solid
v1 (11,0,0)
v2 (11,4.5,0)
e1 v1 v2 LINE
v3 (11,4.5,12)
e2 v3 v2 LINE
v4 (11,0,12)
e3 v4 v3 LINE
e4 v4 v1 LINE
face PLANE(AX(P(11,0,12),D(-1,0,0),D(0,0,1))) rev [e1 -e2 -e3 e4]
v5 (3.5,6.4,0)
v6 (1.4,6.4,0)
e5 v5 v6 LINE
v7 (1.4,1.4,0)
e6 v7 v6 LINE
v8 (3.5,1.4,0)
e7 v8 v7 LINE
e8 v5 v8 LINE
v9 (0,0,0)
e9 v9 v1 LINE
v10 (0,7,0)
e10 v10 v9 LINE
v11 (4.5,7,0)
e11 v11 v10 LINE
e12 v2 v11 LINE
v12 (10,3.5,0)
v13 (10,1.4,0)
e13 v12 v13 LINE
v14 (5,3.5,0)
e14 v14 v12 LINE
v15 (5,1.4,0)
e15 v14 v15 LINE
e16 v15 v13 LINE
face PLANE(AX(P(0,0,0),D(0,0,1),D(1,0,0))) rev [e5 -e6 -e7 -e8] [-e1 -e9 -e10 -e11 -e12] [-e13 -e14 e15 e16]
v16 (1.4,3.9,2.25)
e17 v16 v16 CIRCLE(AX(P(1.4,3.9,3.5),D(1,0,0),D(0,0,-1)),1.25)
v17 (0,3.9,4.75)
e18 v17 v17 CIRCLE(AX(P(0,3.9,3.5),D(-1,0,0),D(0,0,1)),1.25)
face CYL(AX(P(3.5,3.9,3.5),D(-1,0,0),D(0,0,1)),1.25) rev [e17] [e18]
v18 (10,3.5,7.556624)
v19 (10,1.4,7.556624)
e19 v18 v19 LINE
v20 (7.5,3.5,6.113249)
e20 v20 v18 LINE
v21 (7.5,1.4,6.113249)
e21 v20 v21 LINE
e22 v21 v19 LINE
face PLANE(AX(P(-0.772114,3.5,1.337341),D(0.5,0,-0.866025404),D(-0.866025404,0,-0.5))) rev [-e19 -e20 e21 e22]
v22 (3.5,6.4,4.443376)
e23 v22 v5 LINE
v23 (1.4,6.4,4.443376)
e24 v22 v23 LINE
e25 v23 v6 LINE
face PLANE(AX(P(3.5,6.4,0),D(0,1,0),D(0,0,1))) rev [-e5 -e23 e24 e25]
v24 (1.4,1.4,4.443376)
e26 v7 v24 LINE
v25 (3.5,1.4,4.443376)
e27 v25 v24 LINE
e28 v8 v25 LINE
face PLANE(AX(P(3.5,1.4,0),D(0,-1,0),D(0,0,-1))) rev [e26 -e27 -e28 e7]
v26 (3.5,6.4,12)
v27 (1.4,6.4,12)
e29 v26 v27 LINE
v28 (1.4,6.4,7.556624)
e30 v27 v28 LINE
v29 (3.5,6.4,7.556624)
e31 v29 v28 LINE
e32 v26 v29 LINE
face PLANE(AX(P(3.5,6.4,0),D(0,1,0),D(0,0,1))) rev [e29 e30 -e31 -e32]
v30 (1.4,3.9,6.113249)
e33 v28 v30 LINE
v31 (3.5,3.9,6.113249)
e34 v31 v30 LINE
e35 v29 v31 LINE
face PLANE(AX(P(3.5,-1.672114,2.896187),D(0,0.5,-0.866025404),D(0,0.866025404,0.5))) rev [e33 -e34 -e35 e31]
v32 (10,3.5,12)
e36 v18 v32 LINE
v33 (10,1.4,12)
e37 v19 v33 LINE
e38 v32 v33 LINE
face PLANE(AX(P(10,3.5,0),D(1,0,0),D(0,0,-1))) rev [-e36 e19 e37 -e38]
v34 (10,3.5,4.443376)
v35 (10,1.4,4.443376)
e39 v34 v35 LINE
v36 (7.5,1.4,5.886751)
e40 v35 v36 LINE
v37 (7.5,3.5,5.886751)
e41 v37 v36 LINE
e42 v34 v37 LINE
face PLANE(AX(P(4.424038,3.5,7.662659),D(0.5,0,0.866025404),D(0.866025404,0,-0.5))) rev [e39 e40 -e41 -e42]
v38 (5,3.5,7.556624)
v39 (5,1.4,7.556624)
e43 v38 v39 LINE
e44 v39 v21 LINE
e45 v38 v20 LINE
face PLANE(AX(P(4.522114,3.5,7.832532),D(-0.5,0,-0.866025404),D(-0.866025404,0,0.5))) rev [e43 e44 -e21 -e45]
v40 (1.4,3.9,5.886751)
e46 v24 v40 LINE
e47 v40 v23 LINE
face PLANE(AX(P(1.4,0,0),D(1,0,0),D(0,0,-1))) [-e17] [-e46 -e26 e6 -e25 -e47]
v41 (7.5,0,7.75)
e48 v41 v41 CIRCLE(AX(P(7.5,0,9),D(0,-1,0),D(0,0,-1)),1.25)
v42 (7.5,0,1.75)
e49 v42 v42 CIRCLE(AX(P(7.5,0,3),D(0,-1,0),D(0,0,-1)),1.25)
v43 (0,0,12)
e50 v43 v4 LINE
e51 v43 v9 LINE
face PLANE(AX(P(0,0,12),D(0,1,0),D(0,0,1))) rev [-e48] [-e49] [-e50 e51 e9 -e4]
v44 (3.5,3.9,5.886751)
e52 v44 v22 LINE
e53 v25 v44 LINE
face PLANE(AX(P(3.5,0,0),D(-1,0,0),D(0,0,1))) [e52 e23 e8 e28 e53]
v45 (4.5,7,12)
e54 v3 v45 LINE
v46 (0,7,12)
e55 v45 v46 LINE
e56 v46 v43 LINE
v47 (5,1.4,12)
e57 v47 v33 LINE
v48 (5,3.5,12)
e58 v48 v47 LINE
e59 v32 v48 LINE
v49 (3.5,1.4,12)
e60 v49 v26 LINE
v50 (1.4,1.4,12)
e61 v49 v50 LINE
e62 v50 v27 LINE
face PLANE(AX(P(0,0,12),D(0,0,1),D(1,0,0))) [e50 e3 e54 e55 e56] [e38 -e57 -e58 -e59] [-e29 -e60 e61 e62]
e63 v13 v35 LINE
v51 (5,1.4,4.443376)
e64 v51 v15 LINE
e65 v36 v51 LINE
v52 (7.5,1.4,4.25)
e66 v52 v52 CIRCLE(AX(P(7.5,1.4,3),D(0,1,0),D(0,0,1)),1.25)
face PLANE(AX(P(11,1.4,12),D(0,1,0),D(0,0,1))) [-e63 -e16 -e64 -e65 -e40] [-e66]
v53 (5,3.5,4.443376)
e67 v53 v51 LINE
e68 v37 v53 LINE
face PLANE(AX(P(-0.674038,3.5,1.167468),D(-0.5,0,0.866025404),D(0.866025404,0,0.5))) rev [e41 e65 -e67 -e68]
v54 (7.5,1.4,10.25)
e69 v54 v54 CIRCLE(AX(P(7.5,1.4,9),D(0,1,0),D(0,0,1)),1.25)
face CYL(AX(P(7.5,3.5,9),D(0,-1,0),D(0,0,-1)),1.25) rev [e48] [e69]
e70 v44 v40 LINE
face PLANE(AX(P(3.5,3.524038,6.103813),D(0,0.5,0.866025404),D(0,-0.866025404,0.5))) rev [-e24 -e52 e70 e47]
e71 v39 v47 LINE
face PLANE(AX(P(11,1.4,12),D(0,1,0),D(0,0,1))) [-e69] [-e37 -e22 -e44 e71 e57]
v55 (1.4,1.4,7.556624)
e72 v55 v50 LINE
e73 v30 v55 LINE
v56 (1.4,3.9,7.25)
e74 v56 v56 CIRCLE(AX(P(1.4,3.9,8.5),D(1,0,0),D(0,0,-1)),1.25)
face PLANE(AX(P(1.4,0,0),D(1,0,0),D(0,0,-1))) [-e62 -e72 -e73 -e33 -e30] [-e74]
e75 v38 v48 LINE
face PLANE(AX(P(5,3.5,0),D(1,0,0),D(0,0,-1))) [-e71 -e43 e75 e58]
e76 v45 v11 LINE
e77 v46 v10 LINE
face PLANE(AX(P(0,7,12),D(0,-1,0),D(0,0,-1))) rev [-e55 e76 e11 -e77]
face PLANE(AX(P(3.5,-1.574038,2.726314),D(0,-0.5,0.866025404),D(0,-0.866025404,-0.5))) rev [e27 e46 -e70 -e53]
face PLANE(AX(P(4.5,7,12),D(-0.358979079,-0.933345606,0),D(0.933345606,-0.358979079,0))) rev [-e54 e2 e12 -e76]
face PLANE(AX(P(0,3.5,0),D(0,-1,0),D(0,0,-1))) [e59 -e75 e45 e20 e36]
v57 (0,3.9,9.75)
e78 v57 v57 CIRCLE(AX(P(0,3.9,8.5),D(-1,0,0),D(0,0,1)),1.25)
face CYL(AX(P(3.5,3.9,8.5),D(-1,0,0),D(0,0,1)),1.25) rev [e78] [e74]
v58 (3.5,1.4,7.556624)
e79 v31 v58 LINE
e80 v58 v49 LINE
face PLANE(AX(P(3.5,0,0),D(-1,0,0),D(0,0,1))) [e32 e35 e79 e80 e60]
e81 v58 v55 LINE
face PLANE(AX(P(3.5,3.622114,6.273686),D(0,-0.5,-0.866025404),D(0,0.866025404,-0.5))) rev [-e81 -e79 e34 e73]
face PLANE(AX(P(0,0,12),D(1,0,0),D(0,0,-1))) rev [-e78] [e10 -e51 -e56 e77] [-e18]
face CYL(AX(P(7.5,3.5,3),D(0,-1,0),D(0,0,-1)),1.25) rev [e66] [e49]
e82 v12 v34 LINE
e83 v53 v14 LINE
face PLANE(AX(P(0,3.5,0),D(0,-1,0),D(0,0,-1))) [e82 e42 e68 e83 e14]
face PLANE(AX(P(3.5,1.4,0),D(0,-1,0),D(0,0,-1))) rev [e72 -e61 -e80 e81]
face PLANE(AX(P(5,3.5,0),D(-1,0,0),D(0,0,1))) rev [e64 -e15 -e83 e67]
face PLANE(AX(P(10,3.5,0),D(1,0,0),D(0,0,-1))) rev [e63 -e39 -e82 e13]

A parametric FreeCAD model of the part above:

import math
import FreeCAD as App
import Part
import Sketcher
Q = App.Units.Quantity

doc = App.newDocument("Part")
params = doc.addObject("Spreadsheet::Sheet", "Params")
for row, (alias, value) in enumerate([
    ("sketch1_width", "11 mm"),
    ("sketch1_height", "7 mm"),
    ("sketch1_width2", "4.5 mm"),
    ("pad1_length", "12 mm"),
    ("sketch2_width", "5 mm"),
    ("pocket1_length", "3.5 mm"),
    ("sketch3_height", "12 mm"),
    ("sketch3_width", "1.4 mm"),
    ("pad2_length", "7 mm"),
    ("sketch4_diameter", "2.5 mm"),
    ("sketch4_width", "5 mm"),
    ("pocket2_length", "3.5 mm"),
    ("sketch5_width", "7 mm"),
    ("sketch5_height", "1.4 mm"),
    ("pad3_length", "12 mm"),
    ("sketch6_radius", "1.25 mm"),
    ("pocket3_length", "3.5 mm"),
    ("sketch7_radius", "1.25 mm"),
    ("pocket4_length", "3.5 mm"),
], start=1):
    params.set(f"A{row}", alias)
    params.set(f"B{row}", "=" + value)
    params.setAlias(f"B{row}", alias)

body = doc.addObject("PartDesign::Body", "Body")

sketch1 = body.newObject("Sketcher::SketchObject", "Sketch")
sketch1.AttachmentSupport = (doc.getObject("XY_Plane"), [""])
sketch1.MapMode = "FlatFace"
sketch1.addGeometry([
    Part.LineSegment(App.Vector(0, 7, 0), App.Vector(0, 0, 0)),
    Part.LineSegment(App.Vector(0, 0, 0), App.Vector(11, 0, 0)),
    Part.LineSegment(App.Vector(11, 0, 0), App.Vector(11, 4.5, 0)),
    Part.LineSegment(App.Vector(11, 4.5, 0), App.Vector(4.5, 7, 0)),
    Part.LineSegment(App.Vector(4.5, 7, 0), App.Vector(0, 7, 0)),
], False)
sketch1.addConstraint([
    Sketcher.Constraint("Coincident", 0, 2, 1, 1),
    Sketcher.Constraint("Coincident", 1, 2, 2, 1),
    Sketcher.Constraint("Coincident", 2, 2, 3, 1),
    Sketcher.Constraint("Coincident", 3, 2, 4, 1),
    Sketcher.Constraint("Coincident", 4, 2, 0, 1),
    Sketcher.Constraint("Vertical", 0),
    Sketcher.Constraint("Horizontal", 1),
    Sketcher.Constraint("Vertical", 2),
    Sketcher.Constraint("Horizontal", 4),
    Sketcher.Constraint("Coincident", 0, 2, -1, 1),
    Sketcher.Constraint("Equal", 4, 2),
    Sketcher.Constraint("DistanceX", 1, 1, 1, 2, Q("11 mm")),
    Sketcher.Constraint("DistanceY", 0, 2, 0, 1, Q("7 mm")),
    Sketcher.Constraint("DistanceX", 4, 2, 4, 1, Q("4.5 mm")),
])
sketch1.setExpression("Constraints[11]", "Params.sketch1_width")
sketch1.setExpression("Constraints[12]", "Params.sketch1_height")
sketch1.setExpression("Constraints[13]", "Params.sketch1_width2")
pad1 = body.newObject("PartDesign::Pad", "Pad")
pad1.Profile = sketch1
pad1.setExpression("Length", "Params.pad1_length")

sketch2 = body.newObject("Sketcher::SketchObject", "Sketch001")
sketch2.AttachmentSupport = (doc.getObject("YZ_Plane"), [""])
sketch2.MapMode = "FlatFace"
sketch2.addGeometry([
    Part.LineSegment(App.Vector(6.4, 4.443376, 0), App.Vector(6.4, 0, 0)),
    Part.LineSegment(App.Vector(6.4, 0, 0), App.Vector(1.4, 0, 0)),
    Part.LineSegment(App.Vector(1.4, 0, 0), App.Vector(1.4, 4.443376, 0)),
    Part.LineSegment(App.Vector(1.4, 4.443376, 0), App.Vector(3.9, 5.886751, 0)),
    Part.LineSegment(App.Vector(3.9, 5.886751, 0), App.Vector(6.4, 4.443376, 0)),
    Part.LineSegment(App.Vector(6.4, 7.556624, 0), App.Vector(3.9, 6.113249, 0)),
    Part.LineSegment(App.Vector(3.9, 6.113249, 0), App.Vector(1.4, 7.556624, 0)),
    Part.LineSegment(App.Vector(1.4, 7.556624, 0), App.Vector(1.4, 12, 0)),
    Part.LineSegment(App.Vector(1.4, 12, 0), App.Vector(6.4, 12, 0)),
    Part.LineSegment(App.Vector(6.4, 12, 0), App.Vector(6.4, 7.556624, 0)),
], False)
sketch2.addConstraint([
    Sketcher.Constraint("Coincident", 0, 2, 1, 1),
    Sketcher.Constraint("Coincident", 1, 2, 2, 1),
    Sketcher.Constraint("Coincident", 2, 2, 3, 1),
    Sketcher.Constraint("Coincident", 3, 2, 4, 1),
    Sketcher.Constraint("Coincident", 4, 2, 0, 1),
    Sketcher.Constraint("Coincident", 5, 2, 6, 1),
    Sketcher.Constraint("Coincident", 6, 2, 7, 1),
    Sketcher.Constraint("Coincident", 7, 2, 8, 1),
    Sketcher.Constraint("Coincident", 8, 2, 9, 1),
    Sketcher.Constraint("Coincident", 9, 2, 5, 1),
    Sketcher.Constraint("Vertical", 0),
    Sketcher.Constraint("Horizontal", 1),
    Sketcher.Constraint("Vertical", 2),
    Sketcher.Constraint("Vertical", 7),
    Sketcher.Constraint("Horizontal", 8),
    Sketcher.Constraint("Vertical", 9),
    Sketcher.Constraint("PointOnObject", 0, 2, -1),
    Sketcher.Constraint("Parallel", 3, 5),
    Sketcher.Constraint("Parallel", 4, 6),
    Sketcher.Constraint("Horizontal", 2, 2, 4, 2),
    Sketcher.Constraint("Horizontal", 6, 2, 9, 2),
    Sketcher.Constraint("Vertical", 3, 2, 5, 2),
    Sketcher.Constraint("Vertical", 2, 2, 6, 2),
    Sketcher.Constraint("Vertical", 4, 2, 8, 2),
    Sketcher.Constraint("Equal", 2, 7),
    Sketcher.Constraint("DistanceX", 1, 2, 1, 1, Q("5 mm")),
    Sketcher.Constraint("Angle", 3, Q("30 deg")),
    Sketcher.Constraint("DistanceY", -1, 1, 7, 2, Q("12 mm")),
    Sketcher.Constraint("DistanceX", -1, 1, 0, 2, Q("6.4 mm")),
    Sketcher.Constraint("DistanceY", 0, 2, 0, 1, Q("4.443376 mm")),
])
sketch2.setExpression("Constraints[25]", "Params.sketch2_width")
pocket1 = body.newObject("PartDesign::Pocket", "Pocket")
pocket1.Profile = sketch2
pocket1.setExpression("Length", "Params.pocket1_length")
pocket1.Reversed = True

sketch3 = body.newObject("Sketcher::SketchObject", "Sketch002")
sketch3.AttachmentSupport = (doc.getObject("XZ_Plane"), [""])
sketch3.MapMode = "FlatFace"
sketch3.AttachmentOffset = App.Placement(App.Vector(0, 0, -7), App.Rotation())
sketch3.addGeometry([
    Part.LineSegment(App.Vector(0, 0, 0), App.Vector(0, 12, 0)),
    Part.LineSegment(App.Vector(0, 12, 0), App.Vector(1.4, 12, 0)),
    Part.LineSegment(App.Vector(1.4, 12, 0), App.Vector(1.4, 0, 0)),
    Part.LineSegment(App.Vector(1.4, 0, 0), App.Vector(0, 0, 0)),
], False)
sketch3.addConstraint([
    Sketcher.Constraint("Coincident", 0, 2, 1, 1),
    Sketcher.Constraint("Coincident", 1, 2, 2, 1),
    Sketcher.Constraint("Coincident", 2, 2, 3, 1),
    Sketcher.Constraint("Coincident", 3, 2, 0, 1),
    Sketcher.Constraint("Vertical", 0),
    Sketcher.Constraint("Horizontal", 1),
    Sketcher.Constraint("Vertical", 2),
    Sketcher.Constraint("Horizontal", 3),
    Sketcher.Constraint("Coincident", 3, 2, -1, 1),
    Sketcher.Constraint("DistanceY", 0, 1, 0, 2, Q("12 mm")),
    Sketcher.Constraint("DistanceX", 1, 1, 1, 2, Q("1.4 mm")),
])
sketch3.setExpression("Constraints[9]", "Params.sketch3_height")
sketch3.setExpression("Constraints[10]", "Params.sketch3_width")
pad2 = body.newObject("PartDesign::Pad", "Pad001")
pad2.Profile = sketch3
pad2.setExpression("Length", "Params.pad2_length")

sketch4 = body.newObject("Sketcher::SketchObject", "Sketch003")
sketch4.AttachmentSupport = (doc.getObject("XZ_Plane"), [""])
sketch4.MapMode = "FlatFace"
sketch4.addGeometry([
    Part.LineSegment(App.Vector(7.5, 6.113249, 0), App.Vector(10, 7.556624, 0)),
    Part.LineSegment(App.Vector(10, 7.556624, 0), App.Vector(10, 12, 0)),
    Part.LineSegment(App.Vector(10, 12, 0), App.Vector(5, 12, 0)),
    Part.LineSegment(App.Vector(5, 12, 0), App.Vector(5, 7.556624, 0)),
    Part.LineSegment(App.Vector(5, 7.556624, 0), App.Vector(7.5, 6.113249, 0)),
    Part.LineSegment(App.Vector(5, 4.443376, 0), App.Vector(5, 0, 0)),
    Part.LineSegment(App.Vector(5, 0, 0), App.Vector(10, 0, 0)),
    Part.LineSegment(App.Vector(10, 0, 0), App.Vector(10, 4.443376, 0)),
    Part.LineSegment(App.Vector(10, 4.443376, 0), App.Vector(7.5, 5.886751, 0)),
    Part.LineSegment(App.Vector(7.5, 5.886751, 0), App.Vector(5, 4.443376, 0)),
    Part.Circle(App.Vector(7.5, 3, 0), App.Vector(0, 0, 1), 1.25),
], False)
sketch4.addConstraint([
    Sketcher.Constraint("Coincident", 0, 2, 1, 1),
    Sketcher.Constraint("Coincident", 1, 2, 2, 1),
    Sketcher.Constraint("Coincident", 2, 2, 3, 1),
    Sketcher.Constraint("Coincident", 3, 2, 4, 1),
    Sketcher.Constraint("Coincident", 4, 2, 0, 1),
    Sketcher.Constraint("Coincident", 5, 2, 6, 1),
    Sketcher.Constraint("Coincident", 6, 2, 7, 1),
    Sketcher.Constraint("Coincident", 7, 2, 8, 1),
    Sketcher.Constraint("Coincident", 8, 2, 9, 1),
    Sketcher.Constraint("Coincident", 9, 2, 5, 1),
    Sketcher.Constraint("Vertical", 1),
    Sketcher.Constraint("Horizontal", 2),
    Sketcher.Constraint("Vertical", 3),
    Sketcher.Constraint("Vertical", 5),
    Sketcher.Constraint("Horizontal", 6),
    Sketcher.Constraint("Vertical", 7),
    Sketcher.Constraint("PointOnObject", 5, 2, -1),
    Sketcher.Constraint("Parallel", 4, 8),
    Sketcher.Constraint("Parallel", 0, 9),
    Sketcher.Constraint("Horizontal", 0, 2, 3, 2),
    Sketcher.Constraint("Horizontal", 7, 2, 9, 2),
    Sketcher.Constraint("Vertical", 10, 3, 4, 2),
    Sketcher.Constraint("Vertical", 3, 2, 5, 2),
    Sketcher.Constraint("Vertical", 1, 2, 6, 2),
    Sketcher.Constraint("Vertical", 4, 2, 8, 2),
    Sketcher.Constraint("Equal", 3, 5),
    Sketcher.Constraint("Diameter", 10, Q("2.5 mm")),
    Sketcher.Constraint("DistanceX", 2, 2, 2, 1, Q("5 mm")),
    Sketcher.Constraint("Angle", 0, Q("30 deg")),
    Sketcher.Constraint("DistanceY", -1, 1, 10, 3, Q("3 mm")),
    Sketcher.Constraint("DistanceX", -1, 1, 0, 2, Q("10 mm")),
    Sketcher.Constraint("DistanceY", -1, 1, 1, 2, Q("12 mm")),
    Sketcher.Constraint("DistanceY", 1, 1, 1, 2, Q("4.443376 mm")),
])
sketch4.setExpression("Constraints[26]", "Params.sketch4_diameter")
sketch4.setExpression("Constraints[27]", "Params.sketch4_width")
pocket2 = body.newObject("PartDesign::Pocket", "Pocket001")
pocket2.Profile = sketch4
pocket2.setExpression("Length", "Params.pocket2_length")

sketch5 = body.newObject("Sketcher::SketchObject", "Sketch004")
sketch5.AttachmentSupport = (doc.getObject("XY_Plane"), [""])
sketch5.MapMode = "FlatFace"
sketch5.addGeometry([
    Part.LineSegment(App.Vector(11, 1.4, 0), App.Vector(11, 0, 0)),
    Part.LineSegment(App.Vector(11, 0, 0), App.Vector(4, 0, 0)),
    Part.LineSegment(App.Vector(4, 0, 0), App.Vector(4, 1.4, 0)),
    Part.LineSegment(App.Vector(4, 1.4, 0), App.Vector(11, 1.4, 0)),
], False)
sketch5.addConstraint([
    Sketcher.Constraint("Coincident", 0, 2, 1, 1),
    Sketcher.Constraint("Coincident", 1, 2, 2, 1),
    Sketcher.Constraint("Coincident", 2, 2, 3, 1),
    Sketcher.Constraint("Coincident", 3, 2, 0, 1),
    Sketcher.Constraint("Vertical", 0),
    Sketcher.Constraint("Horizontal", 1),
    Sketcher.Constraint("Vertical", 2),
    Sketcher.Constraint("Horizontal", 3),
    Sketcher.Constraint("PointOnObject", 0, 2, -1),
    Sketcher.Constraint("DistanceX", 1, 2, 1, 1, Q("7 mm")),
    Sketcher.Constraint("DistanceY", 0, 2, 0, 1, Q("1.4 mm")),
    Sketcher.Constraint("DistanceX", -1, 1, 0, 2, Q("11 mm")),
])
sketch5.setExpression("Constraints[9]", "Params.sketch5_width")
sketch5.setExpression("Constraints[10]", "Params.sketch5_height")
pad3 = body.newObject("PartDesign::Pad", "Pad002")
pad3.Profile = sketch5
pad3.setExpression("Length", "Params.pad3_length")

sketch6 = body.newObject("Sketcher::SketchObject", "Sketch005")
sketch6.AttachmentSupport = (doc.getObject("YZ_Plane"), [""])
sketch6.MapMode = "FlatFace"
sketch6.addGeometry([
    Part.ArcOfCircle(Part.Circle(App.Vector(3.9, 3.5, 0), App.Vector(0, 0, 1), 1.25), math.radians(-180), math.radians(-90)),
    Part.ArcOfCircle(Part.Circle(App.Vector(3.9, 3.5, 0), App.Vector(0, 0, 1), 1.25), math.radians(90), math.radians(180)),
    Part.ArcOfCircle(Part.Circle(App.Vector(3.9, 3.5, 0), App.Vector(0, 0, 1), 1.25), math.radians(-90), math.radians(90)),
    Part.ArcOfCircle(Part.Circle(App.Vector(3.9, 8.5, 0), App.Vector(0, 0, 1), 1.25), math.radians(180), math.radians(450)),
    Part.ArcOfCircle(Part.Circle(App.Vector(3.9, 8.5, 0), App.Vector(0, 0, 1), 1.25), math.radians(90), math.radians(180)),
], False)
sketch6.addConstraint([
    Sketcher.Constraint("Tangent", 0, 1, 1, 2),
    Sketcher.Constraint("Tangent", 1, 1, 2, 2),
    Sketcher.Constraint("Tangent", 2, 1, 0, 2),
    Sketcher.Constraint("Tangent", 3, 1, 4, 2),
    Sketcher.Constraint("Coincident", 4, 1, 3, 2),
    Sketcher.Constraint("Equal", 2, 3),
    Sketcher.Constraint("Horizontal", 2, 3, 0, 1),
    Sketcher.Constraint("Horizontal", 4, 3, 3, 1),
    Sketcher.Constraint("Vertical", 2, 3, 3, 3),
    Sketcher.Constraint("Vertical", 4, 3, 1, 1),
    Sketcher.Constraint("Vertical", 1, 1, 2, 1),
    Sketcher.Constraint("Vertical", 2, 1, 4, 1),
    Sketcher.Constraint("Radius", 0, Q("1.25 mm")),
    Sketcher.Constraint("DistanceY", 0, 3, 3, 3, Q("5 mm")),
    Sketcher.Constraint("DistanceX", -1, 1, 0, 3, Q("3.9 mm")),
    Sketcher.Constraint("DistanceY", -1, 1, 0, 3, Q("3.5 mm")),
])
sketch6.setExpression("Constraints[12]", "Params.sketch6_radius")
pocket3 = body.newObject("PartDesign::Pocket", "Pocket002")
pocket3.Profile = sketch6
pocket3.setExpression("Length", "Params.pocket3_length")
pocket3.Reversed = True

sketch7 = body.newObject("Sketcher::SketchObject", "Sketch006")
sketch7.AttachmentSupport = (doc.getObject("XZ_Plane"), [""])
sketch7.MapMode = "FlatFace"
sketch7.addGeometry([
    Part.ArcOfCircle(Part.Circle(App.Vector(7.5, 9, 0), App.Vector(0, 0, 1), 1.25), math.radians(90), math.radians(360)),
    Part.ArcOfCircle(Part.Circle(App.Vector(7.5, 9, 0), App.Vector(0, 0, 1), 1.25), math.radians(0), math.radians(90)),
    Part.ArcOfCircle(Part.Circle(App.Vector(7.5, 3, 0), App.Vector(0, 0, 1), 1.25), math.radians(-90), math.radians(0)),
    Part.ArcOfCircle(Part.Circle(App.Vector(7.5, 3, 0), App.Vector(0, 0, 1), 1.25), math.radians(0), math.radians(270)),
], False)
sketch7.addConstraint([
    Sketcher.Constraint("Tangent", 0, 1, 1, 2),
    Sketcher.Constraint("Coincident", 1, 1, 0, 2),
    Sketcher.Constraint("Tangent", 2, 1, 3, 2),
    Sketcher.Constraint("Coincident", 3, 1, 2, 2),
    Sketcher.Constraint("Equal", 1, 2),
    Sketcher.Constraint("Horizontal", 0, 3, 1, 1),
    Sketcher.Constraint("Horizontal", 2, 3, 3, 1),
    Sketcher.Constraint("Vertical", 1, 3, 2, 3),
    Sketcher.Constraint("Vertical", 3, 3, 0, 1),
    Sketcher.Constraint("Vertical", 0, 1, 2, 1),
    Sketcher.Constraint("Radius", 0, Q("1.25 mm")),
    Sketcher.Constraint("DistanceY", -1, 1, 0, 3, Q("9 mm")),
    Sketcher.Constraint("DistanceY", -1, 1, 2, 3, Q("3 mm")),
    Sketcher.Constraint("DistanceX", -1, 1, 0, 3, Q("7.5 mm")),
])
sketch7.setExpression("Constraints[10]", "Params.sketch7_radius")
pocket4 = body.newObject("PartDesign::Pocket", "Pocket003")
pocket4.Profile = sketch7
pocket4.setExpression("Length", "Params.pocket4_length")

doc.recompute()
